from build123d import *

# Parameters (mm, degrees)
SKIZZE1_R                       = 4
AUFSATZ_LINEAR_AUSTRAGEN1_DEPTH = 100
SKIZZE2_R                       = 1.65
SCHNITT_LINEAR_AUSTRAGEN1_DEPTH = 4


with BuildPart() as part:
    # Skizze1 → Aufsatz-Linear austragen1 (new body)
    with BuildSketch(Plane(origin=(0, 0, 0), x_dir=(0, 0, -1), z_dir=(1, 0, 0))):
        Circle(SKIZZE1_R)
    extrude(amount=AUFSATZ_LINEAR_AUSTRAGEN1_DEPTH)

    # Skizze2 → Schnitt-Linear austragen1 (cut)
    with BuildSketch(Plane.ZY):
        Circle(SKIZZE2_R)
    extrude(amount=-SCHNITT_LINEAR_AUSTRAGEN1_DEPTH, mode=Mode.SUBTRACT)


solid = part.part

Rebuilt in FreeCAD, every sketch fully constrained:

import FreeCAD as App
import Part
import Sketcher
from FreeCAD import Vector
Q = App.Units.Quantity

doc = App.newDocument("Part")
body = doc.addObject("PartDesign::Body", "Body")

# Sketch on YZ plane
sketch1 = doc.addObject("Sketcher::SketchObject", "Sketch")
body.addObject(sketch1)
sketch1.AttachmentSupport = (doc.YZ_Plane, [""])
sketch1.MapMode = "FlatFace"
sketch1.addGeometry(Part.Circle(Vector(0, 0, 0), Vector(0, 0, 1), 4), False)
sketch1.addConstraint([
    Sketcher.Constraint("Coincident", 0, 3, -1, 1),
    Sketcher.Constraint("Diameter", 0, Q("8 mm")),
])
pad1 = doc.addObject("PartDesign::Pad", "Pad")
body.addObject(pad1)
pad1.Profile = sketch1
pad1.Length = 100

# Sketch on YZ plane
sketch2 = doc.addObject("Sketcher::SketchObject", "Sketch001")
body.addObject(sketch2)
sketch2.AttachmentSupport = (doc.YZ_Plane, [""])
sketch2.MapMode = "FlatFace"
sketch2.addGeometry(Part.Circle(Vector(0, 0, 0), Vector(0, 0, 1), 1.6), False)
sketch2.addConstraint([
    Sketcher.Constraint("Coincident", 0, 3, -1, 1),
    Sketcher.Constraint("Diameter", 0, Q("3.3 mm")),
])
pocket1 = doc.addObject("PartDesign::Pocket", "Pocket")
body.addObject(pocket1)
pocket1.Profile = sketch2
pocket1.Length = 4
pocket1.Reversed = True

doc.recompute()
